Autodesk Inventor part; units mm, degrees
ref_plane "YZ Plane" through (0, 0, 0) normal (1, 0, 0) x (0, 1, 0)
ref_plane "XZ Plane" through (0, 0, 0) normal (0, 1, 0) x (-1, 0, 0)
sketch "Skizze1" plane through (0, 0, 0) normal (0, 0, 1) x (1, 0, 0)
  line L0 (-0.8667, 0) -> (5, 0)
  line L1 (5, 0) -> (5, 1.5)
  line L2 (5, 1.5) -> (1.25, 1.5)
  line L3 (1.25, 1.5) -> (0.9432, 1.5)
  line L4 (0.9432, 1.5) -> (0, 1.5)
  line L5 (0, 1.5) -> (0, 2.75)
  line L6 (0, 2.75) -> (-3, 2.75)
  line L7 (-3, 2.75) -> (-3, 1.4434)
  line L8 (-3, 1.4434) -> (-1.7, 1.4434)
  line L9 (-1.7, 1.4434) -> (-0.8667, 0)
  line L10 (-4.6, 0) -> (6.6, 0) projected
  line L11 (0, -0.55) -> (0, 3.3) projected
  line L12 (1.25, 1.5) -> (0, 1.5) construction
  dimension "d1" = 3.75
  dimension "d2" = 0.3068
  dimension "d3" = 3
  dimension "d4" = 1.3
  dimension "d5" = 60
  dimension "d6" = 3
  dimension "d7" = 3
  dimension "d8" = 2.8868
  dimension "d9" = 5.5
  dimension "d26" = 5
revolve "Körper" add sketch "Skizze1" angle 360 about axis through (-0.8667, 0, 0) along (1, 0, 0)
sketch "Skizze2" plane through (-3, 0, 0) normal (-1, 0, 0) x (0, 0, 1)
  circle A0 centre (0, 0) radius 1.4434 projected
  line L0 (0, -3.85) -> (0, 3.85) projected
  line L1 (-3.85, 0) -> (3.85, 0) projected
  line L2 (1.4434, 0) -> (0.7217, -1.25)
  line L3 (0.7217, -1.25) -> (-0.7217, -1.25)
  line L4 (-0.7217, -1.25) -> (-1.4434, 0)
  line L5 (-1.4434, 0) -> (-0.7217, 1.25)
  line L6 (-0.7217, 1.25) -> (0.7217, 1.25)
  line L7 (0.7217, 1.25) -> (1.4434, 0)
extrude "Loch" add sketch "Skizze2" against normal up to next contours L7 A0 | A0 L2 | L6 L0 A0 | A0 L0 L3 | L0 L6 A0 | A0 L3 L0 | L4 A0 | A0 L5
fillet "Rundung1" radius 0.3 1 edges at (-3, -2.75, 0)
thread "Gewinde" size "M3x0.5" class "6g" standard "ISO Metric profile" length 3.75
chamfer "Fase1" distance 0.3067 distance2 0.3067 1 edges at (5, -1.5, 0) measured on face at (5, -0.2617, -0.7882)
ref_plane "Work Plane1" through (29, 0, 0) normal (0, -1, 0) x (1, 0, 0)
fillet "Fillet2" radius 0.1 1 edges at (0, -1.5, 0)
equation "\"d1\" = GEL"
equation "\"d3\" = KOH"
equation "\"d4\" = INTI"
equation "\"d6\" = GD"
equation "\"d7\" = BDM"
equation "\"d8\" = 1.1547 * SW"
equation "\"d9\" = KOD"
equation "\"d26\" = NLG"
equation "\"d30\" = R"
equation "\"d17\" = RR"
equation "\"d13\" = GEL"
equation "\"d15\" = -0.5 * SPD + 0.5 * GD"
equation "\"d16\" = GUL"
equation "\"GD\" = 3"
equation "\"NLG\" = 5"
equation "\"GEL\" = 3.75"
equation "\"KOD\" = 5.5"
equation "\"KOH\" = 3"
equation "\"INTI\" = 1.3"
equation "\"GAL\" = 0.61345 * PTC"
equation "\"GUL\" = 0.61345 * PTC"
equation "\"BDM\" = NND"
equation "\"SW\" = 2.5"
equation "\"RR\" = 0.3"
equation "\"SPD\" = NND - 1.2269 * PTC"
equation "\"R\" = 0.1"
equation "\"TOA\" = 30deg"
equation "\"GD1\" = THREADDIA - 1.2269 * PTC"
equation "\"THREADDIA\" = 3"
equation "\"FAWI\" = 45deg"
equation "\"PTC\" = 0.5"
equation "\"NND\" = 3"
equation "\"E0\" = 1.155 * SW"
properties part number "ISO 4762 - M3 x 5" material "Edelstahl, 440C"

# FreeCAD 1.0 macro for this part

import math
import FreeCAD as App
import Part
import Sketcher
from FreeCAD import Vector
Q = App.Units.Quantity


def edges_at(feature, points):
    """Names of the edges that pass closest to the given points."""
    edges = feature.Shape.Edges
    near = lambda p: min(range(len(edges)), key=lambda i: edges[i].distToShape(Part.Vertex(*p))[0])
    return sorted({f"Edge{near(p) + 1}" for p in points})

doc = App.newDocument("Part")
params = doc.addObject("Spreadsheet::Sheet", "Params")
for row, (alias, value) in enumerate([
    ("sketch1_width", "5 mm"),
    ("sketch1_width2", "3 mm"),
    ("sketch1_width3", "1.3 mm"),
    ("sketch1_height", "1.5 mm"),
    ("sketch1_height2", "1.25 mm"),
    ("revolution_angle", "360 deg"),
    ("fillet_radius", "0.3 mm"),
    ("chamfer_size", "0.3067 mm"),
    ("chamfer_size2", "0.3067 mm"),
    ("fillet2_radius", "0.1 mm"),
], start=1):
    params.set(f"A{row}", alias)
    params.set(f"B{row}", "=" + value)
    params.setAlias(f"B{row}", alias)

body = doc.addObject("PartDesign::Body", "Body")

sketch1 = doc.addObject("Sketcher::SketchObject", "Sketch")
body.addObject(sketch1)
sketch1.AttachmentSupport = (doc.XY_Plane, [""])
sketch1.MapMode = "FlatFace"
sketch1.addGeometry(Part.LineSegment(Vector(-1.7, 1.4, 0), Vector(-0.9, 0, 0)), False)
sketch1.addGeometry(Part.LineSegment(Vector(-0.9, 0, 0), Vector(5, 0, 0)), False)
sketch1.addGeometry(Part.LineSegment(Vector(5, 0, 0), Vector(5, 1.5, 0)), False)
sketch1.addGeometry(Part.LineSegment(Vector(5, 1.5, 0), Vector(0, 1.5, 0)), False)
sketch1.addGeometry(Part.LineSegment(Vector(0, 1.5, 0), Vector(0, 2.8, 0)), False)
sketch1.addGeometry(Part.LineSegment(Vector(0, 2.8, 0), Vector(-3, 2.8, 0)), False)
sketch1.addGeometry(Part.LineSegment(Vector(-3, 2.8, 0), Vector(-3, 1.4, 0)), False)
sketch1.addGeometry(Part.LineSegment(Vector(-3, 1.4, 0), Vector(-1.7, 1.4, 0)), False)
sketch1.addConstraint(Sketcher.Constraint("Coincident", 0, 2, 1, 1))
sketch1.addConstraint(Sketcher.Constraint("Coincident", 1, 2, 2, 1))
sketch1.addConstraint(Sketcher.Constraint("Coincident", 2, 2, 3, 1))
sketch1.addConstraint(Sketcher.Constraint("Coincident", 3, 2, 4, 1))
sketch1.addConstraint(Sketcher.Constraint("Coincident", 4, 2, 5, 1))
sketch1.addConstraint(Sketcher.Constraint("Coincident", 5, 2, 6, 1))
sketch1.addConstraint(Sketcher.Constraint("Coincident", 6, 2, 7, 1))
sketch1.addConstraint(Sketcher.Constraint("Coincident", 7, 2, 0, 1))
sketch1.addConstraint(Sketcher.Constraint("Horizontal", 1))
sketch1.addConstraint(Sketcher.Constraint("Vertical", 2))
sketch1.addConstraint(Sketcher.Constraint("Horizontal", 3))
sketch1.addConstraint(Sketcher.Constraint("Vertical", 4))
sketch1.addConstraint(Sketcher.Constraint("Horizontal", 5))
sketch1.addConstraint(Sketcher.Constraint("Vertical", 6))
sketch1.addConstraint(Sketcher.Constraint("Horizontal", 7))
sketch1.addConstraint(Sketcher.Constraint("PointOnObject", 0, 2, -1))
sketch1.addConstraint(Sketcher.Constraint("PointOnObject", 3, 2, -2))
sketch1.addConstraint(Sketcher.Constraint("DistanceX", 3, 2, 3, 1, Q("5 mm")))
sketch1.addConstraint(Sketcher.Constraint("DistanceX", 5, 2, 5, 1, Q("3 mm")))
sketch1.addConstraint(Sketcher.Constraint("DistanceX", 7, 1, 7, 2, Q("1.3 mm")))
sketch1.addConstraint(Sketcher.Constraint("DistanceY", 2, 1, 2, 2, Q("1.5 mm")))
sketch1.addConstraint(Sketcher.Constraint("DistanceY", 4, 1, 4, 2, Q("1.25 mm")))
sketch1.addConstraint(Sketcher.Constraint("DistanceX", 1, 1, 1, 2, Q("5.8667 mm")))
sketch1.addConstraint(Sketcher.Constraint("DistanceY", 6, 2, 6, 1, Q("1.3066 mm")))
sketch1.setExpression("Constraints[17]", "Params.sketch1_width")
sketch1.setExpression("Constraints[18]", "Params.sketch1_width2")
sketch1.setExpression("Constraints[19]", "Params.sketch1_width3")
sketch1.setExpression("Constraints[20]", "Params.sketch1_height")
sketch1.setExpression("Constraints[21]", "Params.sketch1_height2")
revolution = doc.addObject("PartDesign::Revolution", "Revolution")
body.addObject(revolution)
revolution.Profile = sketch1
revolution.ReferenceAxis = (sketch1, ["H_Axis"])
revolution.setExpression("Angle", "Params.revolution_angle")

sketch2 = doc.addObject("Sketcher::SketchObject", "Sketch001")
body.addObject(sketch2)
sketch2.AttachmentSupport = (doc.YZ_Plane, [""])
sketch2.MapMode = "FlatFace"
sketch2.AttachmentOffset = App.Placement(Vector(0, 0, -3), App.Rotation())
sketch2.addGeometry(Part.LineSegment(Vector(1.2, 0.7, 0), Vector(0, 1.4, 0)), False)
sketch2.addGeometry(Part.ArcOfCircle(Part.Circle(Vector(0, 0, 0), Vector(0, 0, 1), 1.4), math.radians(30), math.radians(90)), False)
sketch2.addGeometry(Part.ArcOfCircle(Part.Circle(Vector(0, 0, 0), Vector(0, 0, 1), 1.4), math.radians(90), math.radians(150)), False)
sketch2.addGeometry(Part.LineSegment(Vector(0, 1.4, 0), Vector(-1.2, 0.7, 0)), False)
sketch2.addGeometry(Part.ArcOfCircle(Part.Circle(Vector(0, 0, 0), Vector(0, 0, 1), 1.4), math.radians(-30), math.radians(30)), False)
sketch2.addGeometry(Part.LineSegment(Vector(1.2, 0.7, 0), Vector(1.2, -0.7, 0)), False)
sketch2.addGeometry(Part.LineSegment(Vector(-1.2, 0.7, 0), Vector(-1.2, -0.7, 0)), False)
sketch2.addGeometry(Part.ArcOfCircle(Part.Circle(Vector(0, 0, 0), Vector(0, 0, 1), 1.4), math.radians(150), math.radians(210)), False)
sketch2.addGeometry(Part.LineSegment(Vector(-1.2, -0.7, 0), Vector(0, -1.4, 0)), False)
sketch2.addGeometry(Part.ArcOfCircle(Part.Circle(Vector(0, 0, 0), Vector(0, 0, 1), 1.4), math.radians(-150), math.radians(-90)), False)
sketch2.addGeometry(Part.ArcOfCircle(Part.Circle(Vector(0, 0, 0), Vector(0, 0, 1), 1.4), math.radians(-90), math.radians(-30)), False)
sketch2.addGeometry(Part.LineSegment(Vector(0, -1.4, 0), Vector(1.2, -0.7, 0)), False)
sketch2.addConstraint(Sketcher.Constraint("Coincident", 0, 1, 1, 1))
sketch2.addConstraint(Sketcher.Constraint("Coincident", 1, 2, 0, 2))
sketch2.addConstraint(Sketcher.Constraint("Coincident", 2, 1, 3, 1))
sketch2.addConstraint(Sketcher.Constraint("Coincident", 3, 2, 2, 2))
sketch2.addConstraint(Sketcher.Constraint("Coincident", 4, 1, 5, 2))
sketch2.addConstraint(Sketcher.Constraint("Coincident", 5, 1, 4, 2))
sketch2.addConstraint(Sketcher.Constraint("Coincident", 6, 1, 7, 1))
sketch2.addConstraint(Sketcher.Constraint("Coincident", 7, 2, 6, 2))
sketch2.addConstraint(Sketcher.Constraint("Coincident", 8, 1, 9, 1))
sketch2.addConstraint(Sketcher.Constraint("Coincident", 9, 2, 8, 2))
sketch2.addConstraint(Sketcher.Constraint("Coincident", 10, 1, 11, 1))
sketch2.addConstraint(Sketcher.Constraint("Coincident", 11, 2, 10, 2))
sketch2.addConstraint(Sketcher.Constraint("Vertical", 5))
sketch2.addConstraint(Sketcher.Constraint("Vertical", 6))
sketch2.addConstraint(Sketcher.Constraint("Coincident", 1, 3, -1, 1))
sketch2.addConstraint(Sketcher.Constraint("Coincident", 2, 3, -1, 1))
sketch2.addConstraint(Sketcher.Constraint("Coincident", 4, 3, -1, 1))
sketch2.addConstraint(Sketcher.Constraint("Coincident", 7, 3, -1, 1))
sketch2.addConstraint(Sketcher.Constraint("Coincident", 9, 3, -1, 1))
sketch2.addConstraint(Sketcher.Constraint("Coincident", 10, 3, -1, 1))
sketch2.addConstraint(Sketcher.Constraint("Coincident", 2, 1, 1, 2))
sketch2.addConstraint(Sketcher.Constraint("Coincident", 5, 1, 0, 1))
sketch2.addConstraint(Sketcher.Constraint("Coincident", 6, 1, 3, 2))
sketch2.addConstraint(Sketcher.Constraint("Coincident", 8, 1, 7, 2))
sketch2.addConstraint(Sketcher.Constraint("Coincident", 10, 1, 9, 2))
sketch2.addConstraint(Sketcher.Constraint("PointOnObject", 1, 2, -2))
sketch2.addConstraint(Sketcher.Constraint("PointOnObject", 9, 2, -2))
sketch2.addConstraint(Sketcher.Constraint("Parallel", 0, 8))
sketch2.addConstraint(Sketcher.Constraint("Parallel", 3, 11))
sketch2.addConstraint(Sketcher.Constraint("Angle", 0, Q("149.9996 deg")))
sketch2.addConstraint(Sketcher.Constraint("Radius", 1, Q("1.4434 mm")))
pad1 = doc.addObject("PartDesign::Pad", "Pad")
body.addObject(pad1)
pad1.Profile = sketch2
pad1.Type = "UpToFirst"
doc.recompute()

fillet = doc.addObject("PartDesign::Fillet", "Fillet")
body.addObject(fillet)
fillet.Base = (pad1, edges_at(pad1, [(-3, -2.75, 0)]))
fillet.setExpression("Radius", "Params.fillet_radius")
doc.recompute()

chamfer = doc.addObject("PartDesign::Chamfer", "Chamfer")
body.addObject(chamfer)
chamfer.Base = (fillet, edges_at(fillet, [(5, -1.5, 0)]))
chamfer.ChamferType = "Two distances"
chamfer.setExpression("Size", "Params.chamfer_size")
chamfer.setExpression("Size2", "Params.chamfer_size2")
doc.recompute()

fillet2 = doc.addObject("PartDesign::Fillet", "Fillet001")
body.addObject(fillet2)
fillet2.Base = (chamfer, edges_at(chamfer, [(0, -1.5, 0)]))
fillet2.setExpression("Radius", "Params.fillet2_radius")

doc.recompute()
